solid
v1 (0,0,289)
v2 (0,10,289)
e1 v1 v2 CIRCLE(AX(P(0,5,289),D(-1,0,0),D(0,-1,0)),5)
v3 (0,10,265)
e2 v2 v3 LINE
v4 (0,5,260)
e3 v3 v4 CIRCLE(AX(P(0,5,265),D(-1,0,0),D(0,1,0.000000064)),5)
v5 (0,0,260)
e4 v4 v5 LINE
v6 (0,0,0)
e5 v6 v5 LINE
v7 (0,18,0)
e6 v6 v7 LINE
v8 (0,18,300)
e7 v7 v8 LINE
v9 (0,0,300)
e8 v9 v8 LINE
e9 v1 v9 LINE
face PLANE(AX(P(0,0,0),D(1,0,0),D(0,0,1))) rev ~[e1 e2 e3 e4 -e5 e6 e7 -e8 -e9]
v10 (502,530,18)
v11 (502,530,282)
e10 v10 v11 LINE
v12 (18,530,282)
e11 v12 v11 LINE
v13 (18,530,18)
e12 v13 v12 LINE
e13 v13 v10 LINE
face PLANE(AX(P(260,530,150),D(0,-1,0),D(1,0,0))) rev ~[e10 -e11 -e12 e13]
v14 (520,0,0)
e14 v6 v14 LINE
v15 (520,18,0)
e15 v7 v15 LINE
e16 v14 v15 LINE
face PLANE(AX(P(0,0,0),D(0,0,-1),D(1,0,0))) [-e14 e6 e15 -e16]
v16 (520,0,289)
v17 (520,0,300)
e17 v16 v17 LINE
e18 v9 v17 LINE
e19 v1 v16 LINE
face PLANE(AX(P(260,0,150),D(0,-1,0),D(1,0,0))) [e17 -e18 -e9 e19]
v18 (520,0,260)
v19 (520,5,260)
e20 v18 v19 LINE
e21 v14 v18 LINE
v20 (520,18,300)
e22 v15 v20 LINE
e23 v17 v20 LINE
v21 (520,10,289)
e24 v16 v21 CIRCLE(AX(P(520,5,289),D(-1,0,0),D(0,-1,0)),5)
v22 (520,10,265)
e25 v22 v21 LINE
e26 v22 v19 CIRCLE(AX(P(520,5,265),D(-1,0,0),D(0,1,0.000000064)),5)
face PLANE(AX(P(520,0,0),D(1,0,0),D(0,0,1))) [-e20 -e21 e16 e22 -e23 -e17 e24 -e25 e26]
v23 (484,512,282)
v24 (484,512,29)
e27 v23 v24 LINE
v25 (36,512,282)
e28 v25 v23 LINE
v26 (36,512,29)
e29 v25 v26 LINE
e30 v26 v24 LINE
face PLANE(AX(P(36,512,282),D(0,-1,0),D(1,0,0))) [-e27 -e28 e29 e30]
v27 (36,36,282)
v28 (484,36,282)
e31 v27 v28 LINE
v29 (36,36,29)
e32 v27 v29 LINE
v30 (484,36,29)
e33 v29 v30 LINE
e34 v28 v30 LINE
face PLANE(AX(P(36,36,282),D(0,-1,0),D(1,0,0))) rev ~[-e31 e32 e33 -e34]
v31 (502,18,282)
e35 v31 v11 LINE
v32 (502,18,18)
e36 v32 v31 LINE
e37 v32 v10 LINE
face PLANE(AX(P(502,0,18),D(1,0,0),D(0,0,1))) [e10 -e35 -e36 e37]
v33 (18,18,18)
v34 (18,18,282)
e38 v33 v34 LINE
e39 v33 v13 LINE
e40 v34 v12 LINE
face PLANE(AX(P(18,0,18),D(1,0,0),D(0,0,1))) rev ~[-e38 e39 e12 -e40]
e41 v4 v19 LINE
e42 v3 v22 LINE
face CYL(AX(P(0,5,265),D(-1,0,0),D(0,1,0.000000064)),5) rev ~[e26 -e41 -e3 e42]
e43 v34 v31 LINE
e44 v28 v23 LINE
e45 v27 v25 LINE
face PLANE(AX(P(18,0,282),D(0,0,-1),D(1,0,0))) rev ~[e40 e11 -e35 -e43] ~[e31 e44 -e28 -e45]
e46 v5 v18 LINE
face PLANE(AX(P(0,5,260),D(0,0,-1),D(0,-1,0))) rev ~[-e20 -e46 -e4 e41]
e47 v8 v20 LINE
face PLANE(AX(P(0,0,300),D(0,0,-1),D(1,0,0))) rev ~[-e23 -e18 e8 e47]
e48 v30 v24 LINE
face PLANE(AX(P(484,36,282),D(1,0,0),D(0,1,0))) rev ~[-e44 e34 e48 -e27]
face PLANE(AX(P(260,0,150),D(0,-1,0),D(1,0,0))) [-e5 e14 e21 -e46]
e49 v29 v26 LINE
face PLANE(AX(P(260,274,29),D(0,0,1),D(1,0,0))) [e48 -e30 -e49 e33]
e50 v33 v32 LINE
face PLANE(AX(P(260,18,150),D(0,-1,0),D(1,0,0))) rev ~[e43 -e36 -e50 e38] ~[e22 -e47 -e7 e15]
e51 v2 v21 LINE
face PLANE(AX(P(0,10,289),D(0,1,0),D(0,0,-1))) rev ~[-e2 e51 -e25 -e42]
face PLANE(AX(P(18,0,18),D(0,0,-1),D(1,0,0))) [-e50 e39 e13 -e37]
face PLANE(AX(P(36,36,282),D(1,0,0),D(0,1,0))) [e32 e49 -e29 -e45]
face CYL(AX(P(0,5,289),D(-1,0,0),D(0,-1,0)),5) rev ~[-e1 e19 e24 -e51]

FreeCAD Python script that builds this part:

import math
import FreeCAD as App
import Part
import Sketcher

V = App.Vector


def add_polygon(sketch, points):
    """Adds a closed chain of lines whose ends are joined by coincident constraints."""
    first, n = sketch.GeometryCount, len(points)
    for a, b in zip(points, points[1:] + points[:1]):
        sketch.addGeometry(Part.LineSegment(App.Vector(*a, 0), App.Vector(*b, 0)), False)
    for i in range(n):
        sketch.addConstraint(Sketcher.Constraint("Coincident", first + i, 2, first + (i + 1) % n, 1))

doc = App.newDocument("Part")
params = doc.addObject("Spreadsheet::Sheet", "Params")
for row, (alias, value) in enumerate([
    ("sketch1_width", "520 mm"),
    ("sketch1_width2", "484 mm"),
    ("sketch1_height", "300 mm"),
    ("sketch1_height2", "264 mm"),
    ("pad1_length", "18 mm"),
    ("sketch2_width", "484 mm"),
    ("sketch2_height", "264 mm"),
    ("pad2_length", "530 mm"),
    ("sketch3_width", "448 mm"),
    ("sketch3_height", "476 mm"),
    ("pocket1_length", "253 mm"),
    ("sketch4_radius", "5 mm"),
    ("sketch4_height", "29 mm"),
    ("pocket2_length", "545 mm"),
], start=1):
    params.set(f"A{row}", alias)
    params.set(f"B{row}", "=" + value)
    params.setAlias(f"B{row}", alias)

body = doc.addObject("PartDesign::Body", "Body")

# Sketch on XZ plane
sketch1 = body.newObject("Sketcher::SketchObject", "Sketch")
sketch1.AttachmentSupport = (doc.getObject("XZ_Plane"), [""])
sketch1.MapMode = "FlatFace"
add_polygon(sketch1, [(0, 300), (0, 0), (520, 0), (520, 300)])  # lines 0-3
add_polygon(sketch1, [(502, 18), (18, 18), (18, 282), (502, 282)])  # lines 4-7
sketch1.addConstraint(Sketcher.Constraint("Vertical", 0))
sketch1.addConstraint(Sketcher.Constraint("Horizontal", 1))
sketch1.addConstraint(Sketcher.Constraint("Vertical", 2))
sketch1.addConstraint(Sketcher.Constraint("Horizontal", 3))
sketch1.addConstraint(Sketcher.Constraint("Horizontal", 4))
sketch1.addConstraint(Sketcher.Constraint("Vertical", 5))
sketch1.addConstraint(Sketcher.Constraint("Horizontal", 6))
sketch1.addConstraint(Sketcher.Constraint("Vertical", 7))
sketch1.addConstraint(Sketcher.Constraint("Coincident", 0, 2, -1, 1))
sketch1.addConstraint(Sketcher.Constraint("DistanceX", 1, 1, 1, 2, 520.0))
sketch1.addConstraint(Sketcher.Constraint("DistanceX", 4, 2, 4, 1, 484.0))
sketch1.addConstraint(Sketcher.Constraint("DistanceY", 0, 2, 0, 1, 300.0))
sketch1.addConstraint(Sketcher.Constraint("DistanceY", 5, 1, 5, 2, 264.0))
sketch1.addConstraint(Sketcher.Constraint("DistanceX", -1, 1, 4, 2, 18.0))
sketch1.addConstraint(Sketcher.Constraint("DistanceY", -1, 1, 4, 2, 18.0))
sketch1.setExpression("Constraints[17]", "Params.sketch1_width")
sketch1.setExpression("Constraints[18]", "Params.sketch1_width2")
sketch1.setExpression("Constraints[19]", "Params.sketch1_height")
sketch1.setExpression("Constraints[20]", "Params.sketch1_height2")
pad1 = body.newObject("PartDesign::Pad", "Pad")
pad1.Profile = sketch1
pad1.setExpression("Length", "Params.pad1_length")
pad1.Reversed = True

# Sketch on XZ plane
sketch2 = body.newObject("Sketcher::SketchObject", "Sketch001")
sketch2.AttachmentSupport = (doc.getObject("XZ_Plane"), [""])
sketch2.MapMode = "FlatFace"
add_polygon(sketch2, [(18, 282), (18, 18), (502, 18), (502, 282)])  # lines 0-3
sketch2.addConstraint(Sketcher.Constraint("Vertical", 0))
sketch2.addConstraint(Sketcher.Constraint("Horizontal", 1))
sketch2.addConstraint(Sketcher.Constraint("Vertical", 2))
sketch2.addConstraint(Sketcher.Constraint("Horizontal", 3))
sketch2.addConstraint(Sketcher.Constraint("DistanceX", 1, 1, 1, 2, 484.0))
sketch2.addConstraint(Sketcher.Constraint("DistanceY", 0, 2, 0, 1, 264.0))
sketch2.addConstraint(Sketcher.Constraint("DistanceX", -1, 1, 0, 2, 18.0))
sketch2.addConstraint(Sketcher.Constraint("DistanceY", -1, 1, 0, 2, 18.0))
sketch2.setExpression("Constraints[8]", "Params.sketch2_width")
sketch2.setExpression("Constraints[9]", "Params.sketch2_height")
pad2 = body.newObject("PartDesign::Pad", "Pad001")
pad2.Profile = sketch2
pad2.setExpression("Length", "Params.pad2_length")
pad2.Reversed = True

# Sketch on XY plane
sketch3 = body.newObject("Sketcher::SketchObject", "Sketch002")
sketch3.AttachmentSupport = (doc.getObject("XY_Plane"), [""])
sketch3.MapMode = "FlatFace"
sketch3.AttachmentOffset = App.Placement(V(0, 0, 282), App.Rotation())
add_polygon(sketch3, [(36, 512), (36, 36), (484, 36), (484, 512)])  # lines 0-3
sketch3.addConstraint(Sketcher.Constraint("Vertical", 0))
sketch3.addConstraint(Sketcher.Constraint("Horizontal", 1))
sketch3.addConstraint(Sketcher.Constraint("Vertical", 2))
sketch3.addConstraint(Sketcher.Constraint("Horizontal", 3))
sketch3.addConstraint(Sketcher.Constraint("DistanceX", 1, 1, 1, 2, 448.0))
sketch3.addConstraint(Sketcher.Constraint("DistanceY", 0, 2, 0, 1, 476.0))
sketch3.addConstraint(Sketcher.Constraint("DistanceX", -1, 1, 0, 2, 36.0))
sketch3.addConstraint(Sketcher.Constraint("DistanceY", -1, 1, 0, 2, 36.0))
sketch3.setExpression("Constraints[8]", "Params.sketch3_width")
sketch3.setExpression("Constraints[9]", "Params.sketch3_height")
pocket1 = body.newObject("PartDesign::Pocket", "Pocket")
pocket1.Profile = sketch3
pocket1.setExpression("Length", "Params.pocket1_length")

# Sketch on YZ plane
sketch4 = body.newObject("Sketcher::SketchObject", "Sketch003")
sketch4.AttachmentSupport = (doc.getObject("YZ_Plane"), [""])
sketch4.MapMode = "FlatFace"
sketch4.addGeometry(Part.LineSegment(V(5, 260, 0), V(0, 260, 0)), False)
sketch4.addGeometry(Part.LineSegment(V(0, 260, 0), V(0, 289, 0)), False)
sketch4.addGeometry(Part.ArcOfCircle(Part.Circle(V(5, 289, 0), V(0, 0, 1), 5), math.radians(0), math.radians(180)), False)
sketch4.addGeometry(Part.LineSegment(V(10, 289, 0), V(10, 265, 0)), False)
sketch4.addGeometry(Part.ArcOfCircle(Part.Circle(V(5, 265, 0), V(0, 0, 1), 5), math.radians(-90), math.radians(0)), False)
sketch4.addConstraint(Sketcher.Constraint("Coincident", 0, 2, 1, 1))
sketch4.addConstraint(Sketcher.Constraint("Tangent", 1, 2, 2, 2))
sketch4.addConstraint(Sketcher.Constraint("Tangent", 2, 1, 3, 1))
sketch4.addConstraint(Sketcher.Constraint("Tangent", 3, 2, 4, 2))
sketch4.addConstraint(Sketcher.Constraint("Tangent", 4, 1, 0, 1))
sketch4.addConstraint(Sketcher.Constraint("Horizontal", 0))
sketch4.addConstraint(Sketcher.Constraint("Vertical", 1))
sketch4.addConstraint(Sketcher.Constraint("Vertical", 3))
sketch4.addConstraint(Sketcher.Constraint("Equal", 2, 4))
sketch4.addConstraint(Sketcher.Constraint("PointOnObject", 0, 2, -2))
sketch4.addConstraint(Sketcher.Constraint("Radius", 2, 5.0))
sketch4.addConstraint(Sketcher.Constraint("DistanceY", 1, 1, 1, 2, 29.0))
sketch4.addConstraint(Sketcher.Constraint("DistanceY", -1, 1, 2, 3, 289.0))
sketch4.setExpression("Constraints[10]", "Params.sketch4_radius")
sketch4.setExpression("Constraints[11]", "Params.sketch4_height")
pocket2 = body.newObject("PartDesign::Pocket", "Pocket001")
pocket2.Profile = sketch4
pocket2.setExpression("Length", "Params.pocket2_length")
pocket2.Reversed = True

doc.recompute()
